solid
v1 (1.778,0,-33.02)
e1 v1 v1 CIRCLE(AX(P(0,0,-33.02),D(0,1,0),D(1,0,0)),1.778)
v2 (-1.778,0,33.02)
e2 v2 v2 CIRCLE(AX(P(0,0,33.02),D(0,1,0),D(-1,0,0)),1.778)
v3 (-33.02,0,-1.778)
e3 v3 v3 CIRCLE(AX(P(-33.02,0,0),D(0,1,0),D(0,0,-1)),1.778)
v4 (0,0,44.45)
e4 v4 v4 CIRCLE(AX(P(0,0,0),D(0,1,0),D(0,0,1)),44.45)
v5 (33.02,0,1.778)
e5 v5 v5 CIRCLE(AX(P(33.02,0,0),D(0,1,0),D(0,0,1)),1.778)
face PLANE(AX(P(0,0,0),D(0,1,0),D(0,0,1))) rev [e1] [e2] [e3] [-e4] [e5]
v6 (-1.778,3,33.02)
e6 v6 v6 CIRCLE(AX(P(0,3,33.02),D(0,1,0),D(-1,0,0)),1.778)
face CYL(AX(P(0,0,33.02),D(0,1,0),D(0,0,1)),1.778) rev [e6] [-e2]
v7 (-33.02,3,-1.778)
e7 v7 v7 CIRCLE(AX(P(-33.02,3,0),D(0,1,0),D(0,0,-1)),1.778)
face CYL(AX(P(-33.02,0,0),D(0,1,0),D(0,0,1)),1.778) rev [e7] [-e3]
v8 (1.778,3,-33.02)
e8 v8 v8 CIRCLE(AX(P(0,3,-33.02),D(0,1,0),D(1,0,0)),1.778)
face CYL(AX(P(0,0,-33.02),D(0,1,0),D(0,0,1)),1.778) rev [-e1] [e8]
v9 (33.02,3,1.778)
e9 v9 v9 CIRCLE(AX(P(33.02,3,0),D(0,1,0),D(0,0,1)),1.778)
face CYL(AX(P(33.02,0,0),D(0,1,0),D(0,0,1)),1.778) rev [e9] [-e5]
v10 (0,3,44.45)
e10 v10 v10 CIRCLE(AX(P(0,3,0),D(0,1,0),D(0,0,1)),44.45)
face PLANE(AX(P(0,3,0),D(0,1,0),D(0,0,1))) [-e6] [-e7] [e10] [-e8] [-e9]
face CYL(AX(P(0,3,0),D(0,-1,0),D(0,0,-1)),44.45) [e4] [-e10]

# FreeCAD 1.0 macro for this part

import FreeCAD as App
import Part
import Sketcher
Q = App.Units.Quantity

doc = App.newDocument("Part")
params = doc.addObject("Spreadsheet::Sheet", "Params")
for row, (alias, value) in enumerate([
    ("sketch1_diameter", "3.5 in"),
    ("pad1_length", "3 mm"),
    ("sketch2_diameter", "0.14 in"),
], start=1):
    params.set(f"A{row}", alias)
    params.set(f"B{row}", "=" + value)
    params.setAlias(f"B{row}", alias)

body = doc.addObject("PartDesign::Body", "Body")

sketch1 = body.newObject("Sketcher::SketchObject", "Sketch")
sketch1.AttachmentSupport = (doc.getObject("XZ_Plane"), [""])
sketch1.MapMode = "FlatFace"
sketch1.addGeometry(Part.Circle(App.Vector(0, 0, 0), App.Vector(0, 0, 1), 44.45), False)
sketch1.addConstraint(Sketcher.Constraint("Coincident", 0, 3, -1, 1))
sketch1.addConstraint(Sketcher.Constraint("Diameter", 0, Q("3.5 in")))
sketch1.setExpression("Constraints[1]", "Params.sketch1_diameter")
pad1 = body.newObject("PartDesign::Pad", "Pad")
pad1.Profile = sketch1
pad1.setExpression("Length", "Params.pad1_length")
pad1.Reversed = True

sketch2 = body.newObject("Sketcher::SketchObject", "Sketch001")
sketch2.AttachmentSupport = (doc.getObject("XZ_Plane"), [""])
sketch2.MapMode = "FlatFace"
sketch2.AttachmentOffset = App.Placement(App.Vector(0, 0, -3), App.Rotation())
sketch2.addGeometry(Part.Circle(App.Vector(33.02, 0, 0), App.Vector(0, 0, 1), 1.778), False)
sketch2.addConstraint(Sketcher.Constraint("PointOnObject", 0, 3, -1))
sketch2.addConstraint(Sketcher.Constraint("Diameter", 0, Q("0.14 in")))
sketch2.addConstraint(Sketcher.Constraint("DistanceX", -1, 1, 0, 3, Q("1.3 in")))
sketch2.setExpression("Constraints[1]", "Params.sketch2_diameter")
pocket1 = body.newObject("PartDesign::Pocket", "Pocket")
pocket1.Profile = sketch2
pocket1.Type = "ThroughAll"
pocket1.Reversed = True
doc.recompute()

polarpattern = body.newObject("PartDesign::PolarPattern", "PolarPattern")
polarpattern.Originals = [pocket1]
polarpattern.Axis = (doc.getObject("Y_Axis"), [""])
polarpattern.Angle = 360
polarpattern.Occurrences = 4
body.Tip = polarpattern

doc.recompute()
